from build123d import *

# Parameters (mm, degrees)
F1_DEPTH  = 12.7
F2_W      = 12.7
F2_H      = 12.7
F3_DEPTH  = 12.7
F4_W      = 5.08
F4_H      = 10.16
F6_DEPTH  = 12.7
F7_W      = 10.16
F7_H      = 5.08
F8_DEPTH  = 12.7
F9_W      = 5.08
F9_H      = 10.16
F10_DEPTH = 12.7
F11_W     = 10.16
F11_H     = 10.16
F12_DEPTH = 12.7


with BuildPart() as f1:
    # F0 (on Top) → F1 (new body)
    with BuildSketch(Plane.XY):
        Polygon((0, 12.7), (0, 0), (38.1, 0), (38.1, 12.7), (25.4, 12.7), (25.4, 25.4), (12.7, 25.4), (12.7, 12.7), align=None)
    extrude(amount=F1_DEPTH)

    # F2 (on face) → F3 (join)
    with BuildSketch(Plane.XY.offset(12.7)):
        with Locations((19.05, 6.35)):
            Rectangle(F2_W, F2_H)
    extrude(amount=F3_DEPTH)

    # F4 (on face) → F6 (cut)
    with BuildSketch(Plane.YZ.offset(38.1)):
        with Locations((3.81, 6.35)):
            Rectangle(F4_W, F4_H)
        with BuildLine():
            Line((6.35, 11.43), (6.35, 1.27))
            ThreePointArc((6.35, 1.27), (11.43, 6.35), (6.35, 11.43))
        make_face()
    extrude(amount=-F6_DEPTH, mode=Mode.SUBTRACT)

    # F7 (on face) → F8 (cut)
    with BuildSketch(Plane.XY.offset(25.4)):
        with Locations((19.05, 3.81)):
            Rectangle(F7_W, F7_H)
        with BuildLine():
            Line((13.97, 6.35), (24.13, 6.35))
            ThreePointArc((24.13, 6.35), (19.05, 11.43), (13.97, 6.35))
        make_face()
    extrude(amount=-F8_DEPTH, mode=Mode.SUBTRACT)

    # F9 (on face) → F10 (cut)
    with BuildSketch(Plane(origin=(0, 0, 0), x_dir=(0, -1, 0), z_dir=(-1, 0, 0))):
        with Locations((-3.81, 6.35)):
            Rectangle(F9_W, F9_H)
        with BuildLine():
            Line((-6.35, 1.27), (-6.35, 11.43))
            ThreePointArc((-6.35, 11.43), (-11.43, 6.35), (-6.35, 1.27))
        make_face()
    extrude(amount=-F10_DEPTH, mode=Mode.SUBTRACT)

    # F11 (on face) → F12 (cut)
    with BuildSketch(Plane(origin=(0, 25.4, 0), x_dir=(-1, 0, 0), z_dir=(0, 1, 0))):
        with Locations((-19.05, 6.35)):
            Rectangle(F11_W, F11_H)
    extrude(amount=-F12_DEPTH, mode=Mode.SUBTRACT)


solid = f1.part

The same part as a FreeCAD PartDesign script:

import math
import FreeCAD as App
import Part
import Sketcher
from FreeCAD import Vector
Q = App.Units.Quantity

doc = App.newDocument("Part")
body = doc.addObject("PartDesign::Body", "Body")

# Sketch on XY plane
sketch1 = doc.addObject("Sketcher::SketchObject", "Sketch")
body.addObject(sketch1)
sketch1.AttachmentSupport = (doc.XY_Plane, [""])
sketch1.MapMode = "FlatFace"
sketch1.addGeometry(Part.LineSegment(Vector(0, 13, 0), Vector(0, 0, 0)), False)
sketch1.addGeometry(Part.LineSegment(Vector(0, 0, 0), Vector(38, 0, 0)), False)
sketch1.addGeometry(Part.LineSegment(Vector(38, 0, 0), Vector(38, 13, 0)), False)
sketch1.addGeometry(Part.LineSegment(Vector(38, 13, 0), Vector(25, 13, 0)), False)
sketch1.addGeometry(Part.LineSegment(Vector(25, 13, 0), Vector(25, 25, 0)), False)
sketch1.addGeometry(Part.LineSegment(Vector(25, 25, 0), Vector(13, 25, 0)), False)
sketch1.addGeometry(Part.LineSegment(Vector(13, 25, 0), Vector(13, 13, 0)), False)
sketch1.addGeometry(Part.LineSegment(Vector(13, 13, 0), Vector(0, 13, 0)), False)
sketch1.addConstraint(Sketcher.Constraint("Coincident", 0, 2, 1, 1))
sketch1.addConstraint(Sketcher.Constraint("Coincident", 1, 2, 2, 1))
sketch1.addConstraint(Sketcher.Constraint("Coincident", 2, 2, 3, 1))
sketch1.addConstraint(Sketcher.Constraint("Coincident", 3, 2, 4, 1))
sketch1.addConstraint(Sketcher.Constraint("Coincident", 4, 2, 5, 1))
sketch1.addConstraint(Sketcher.Constraint("Coincident", 5, 2, 6, 1))
sketch1.addConstraint(Sketcher.Constraint("Coincident", 6, 2, 7, 1))
sketch1.addConstraint(Sketcher.Constraint("Coincident", 7, 2, 0, 1))
sketch1.addConstraint(Sketcher.Constraint("Vertical", 0))
sketch1.addConstraint(Sketcher.Constraint("Horizontal", 1))
sketch1.addConstraint(Sketcher.Constraint("Vertical", 2))
sketch1.addConstraint(Sketcher.Constraint("Horizontal", 3))
sketch1.addConstraint(Sketcher.Constraint("Vertical", 4))
sketch1.addConstraint(Sketcher.Constraint("Horizontal", 5))
sketch1.addConstraint(Sketcher.Constraint("Vertical", 6))
sketch1.addConstraint(Sketcher.Constraint("Horizontal", 7))
sketch1.addConstraint(Sketcher.Constraint("Coincident", 0, 2, -1, 1))
sketch1.addConstraint(Sketcher.Constraint("Horizontal", 3, 2, 6, 2))
sketch1.addConstraint(Sketcher.Constraint("Equal", 3, 5))
sketch1.addConstraint(Sketcher.Constraint("Equal", 5, 7))
sketch1.addConstraint(Sketcher.Constraint("Equal", 7, 0))
sketch1.addConstraint(Sketcher.Constraint("Equal", 2, 4))
sketch1.addConstraint(Sketcher.Constraint("DistanceX", 1, 1, 1, 2, Q("1.5 in")))
pad1 = doc.addObject("PartDesign::Pad", "Pad")
body.addObject(pad1)
pad1.Profile = sketch1
pad1.Length = Q("0.5 in")

# Sketch on XY plane
sketch2 = doc.addObject("Sketcher::SketchObject", "Sketch001")
body.addObject(sketch2)
sketch2.AttachmentSupport = (doc.XY_Plane, [""])
sketch2.MapMode = "FlatFace"
sketch2.AttachmentOffset = App.Placement(Vector(0, 0, 0.5 * 25.4), App.Rotation())
sketch2.addGeometry(Part.LineSegment(Vector(13, 13, 0), Vector(13, 0, 0)), False)
sketch2.addGeometry(Part.LineSegment(Vector(13, 0, 0), Vector(25, 0, 0)), False)
sketch2.addGeometry(Part.LineSegment(Vector(25, 0, 0), Vector(25, 13, 0)), False)
sketch2.addGeometry(Part.LineSegment(Vector(25, 13, 0), Vector(13, 13, 0)), False)
sketch2.addConstraint(Sketcher.Constraint("Coincident", 0, 2, 1, 1))
sketch2.addConstraint(Sketcher.Constraint("Coincident", 1, 2, 2, 1))
sketch2.addConstraint(Sketcher.Constraint("Coincident", 2, 2, 3, 1))
sketch2.addConstraint(Sketcher.Constraint("Coincident", 3, 2, 0, 1))
sketch2.addConstraint(Sketcher.Constraint("Vertical", 0))
sketch2.addConstraint(Sketcher.Constraint("Horizontal", 1))
sketch2.addConstraint(Sketcher.Constraint("Vertical", 2))
sketch2.addConstraint(Sketcher.Constraint("Horizontal", 3))
sketch2.addConstraint(Sketcher.Constraint("PointOnObject", 0, 2, -1))
sketch2.addConstraint(Sketcher.Constraint("Equal", 3, 0))
sketch2.addConstraint(Sketcher.Constraint("DistanceX", 1, 1, 1, 2, Q("0.5 in")))
sketch2.addConstraint(Sketcher.Constraint("DistanceX", -1, 1, 1, 2, Q("1 in")))
pad2 = doc.addObject("PartDesign::Pad", "Pad001")
body.addObject(pad2)
pad2.Profile = sketch2
pad2.Length = Q("0.5 in")

# Sketch on YZ plane
sketch3 = doc.addObject("Sketcher::SketchObject", "Sketch002")
body.addObject(sketch3)
sketch3.AttachmentSupport = (doc.YZ_Plane, [""])
sketch3.MapMode = "FlatFace"
sketch3.AttachmentOffset = App.Placement(Vector(0, 0, 1.5 * 25.4), App.Rotation())
sketch3.addGeometry(Part.LineSegment(Vector(1, 11, 0), Vector(1, 1, 0)), False)
sketch3.addGeometry(Part.LineSegment(Vector(1, 1, 0), Vector(6, 1, 0)), False)
sketch3.addGeometry(Part.ArcOfCircle(Part.Circle(Vector(6, 6, 0), Vector(0, 0, 1), 5), math.radians(-90), math.radians(90)), False)
sketch3.addGeometry(Part.LineSegment(Vector(6, 11, 0), Vector(1, 11, 0)), False)
sketch3.addConstraint(Sketcher.Constraint("Coincident", 0, 2, 1, 1))
sketch3.addConstraint(Sketcher.Constraint("Tangent", 1, 2, 2, 1))
sketch3.addConstraint(Sketcher.Constraint("Tangent", 2, 2, 3, 1))
sketch3.addConstraint(Sketcher.Constraint("Coincident", 3, 2, 0, 1))
sketch3.addConstraint(Sketcher.Constraint("Vertical", 0))
sketch3.addConstraint(Sketcher.Constraint("Horizontal", 1))
sketch3.addConstraint(Sketcher.Constraint("Horizontal", 3))
sketch3.addConstraint(Sketcher.Constraint("Radius", 2, Q("0.2 in")))
sketch3.addConstraint(Sketcher.Constraint("DistanceX", 1, 1, 1, 2, Q("0.2 in")))
sketch3.addConstraint(Sketcher.Constraint("DistanceX", -1, 1, 2, 3, Q("0.25 in")))
sketch3.addConstraint(Sketcher.Constraint("DistanceY", -1, 1, 2, 3, Q("0.25 in")))
pocket1 = doc.addObject("PartDesign::Pocket", "Pocket")
body.addObject(pocket1)
pocket1.Profile = sketch3
pocket1.Length = Q("0.5 in")

# Sketch on XY plane
sketch4 = doc.addObject("Sketcher::SketchObject", "Sketch003")
body.addObject(sketch4)
sketch4.AttachmentSupport = (doc.XY_Plane, [""])
sketch4.MapMode = "FlatFace"
sketch4.AttachmentOffset = App.Placement(Vector(0, 0, 1 * 25.4), App.Rotation())
sketch4.addGeometry(Part.LineSegment(Vector(14, 6, 0), Vector(14, 1, 0)), False)
sketch4.addGeometry(Part.LineSegment(Vector(14, 1, 0), Vector(24, 1, 0)), False)
sketch4.addGeometry(Part.LineSegment(Vector(24, 1, 0), Vector(24, 6, 0)), False)
sketch4.addGeometry(Part.ArcOfCircle(Part.Circle(Vector(19, 6, 0), Vector(0, 0, 1), 5), math.radians(0), math.radians(180)), False)
sketch4.addConstraint(Sketcher.Constraint("Coincident", 0, 2, 1, 1))
sketch4.addConstraint(Sketcher.Constraint("Coincident", 1, 2, 2, 1))
sketch4.addConstraint(Sketcher.Constraint("Tangent", 2, 2, 3, 1))
sketch4.addConstraint(Sketcher.Constraint("Tangent", 3, 2, 0, 1))
sketch4.addConstraint(Sketcher.Constraint("Vertical", 0))
sketch4.addConstraint(Sketcher.Constraint("Horizontal", 1))
sketch4.addConstraint(Sketcher.Constraint("Vertical", 2))
sketch4.addConstraint(Sketcher.Constraint("Radius", 3, Q("0.2 in")))
sketch4.addConstraint(Sketcher.Constraint("DistanceY", 0, 2, 0, 1, Q("0.2 in")))
sketch4.addConstraint(Sketcher.Constraint("DistanceX", -1, 1, 3, 3, Q("0.75 in")))
sketch4.addConstraint(Sketcher.Constraint("DistanceY", -1, 1, 3, 3, Q("0.25 in")))
pocket2 = doc.addObject("PartDesign::Pocket", "Pocket001")
body.addObject(pocket2)
pocket2.Profile = sketch4
pocket2.Length = Q("0.5 in")

# Sketch on YZ plane
sketch5 = doc.addObject("Sketcher::SketchObject", "Sketch004")
body.addObject(sketch5)
sketch5.AttachmentSupport = (doc.YZ_Plane, [""])
sketch5.MapMode = "FlatFace"
sketch5.addGeometry(Part.LineSegment(Vector(6, 1, 0), Vector(1, 1, 0)), False)
sketch5.addGeometry(Part.LineSegment(Vector(1, 1, 0), Vector(1, 11, 0)), False)
sketch5.addGeometry(Part.LineSegment(Vector(1, 11, 0), Vector(6, 11, 0)), False)
sketch5.addGeometry(Part.ArcOfCircle(Part.Circle(Vector(6, 6, 0), Vector(0, 0, 1), 5), math.radians(-90), math.radians(90)), False)
sketch5.addConstraint(Sketcher.Constraint("Coincident", 0, 2, 1, 1))
sketch5.addConstraint(Sketcher.Constraint("Coincident", 1, 2, 2, 1))
sketch5.addConstraint(Sketcher.Constraint("Tangent", 2, 2, 3, 2))
sketch5.addConstraint(Sketcher.Constraint("Tangent", 3, 1, 0, 1))
sketch5.addConstraint(Sketcher.Constraint("Horizontal", 0))
sketch5.addConstraint(Sketcher.Constraint("Vertical", 1))
sketch5.addConstraint(Sketcher.Constraint("Horizontal", 2))
sketch5.addConstraint(Sketcher.Constraint("Radius", 3, Q("0.2 in")))
sketch5.addConstraint(Sketcher.Constraint("DistanceX", 0, 2, 0, 1, Q("0.2 in")))
sketch5.addConstraint(Sketcher.Constraint("DistanceX", -1, 1, 3, 3, Q("0.25 in")))
sketch5.addConstraint(Sketcher.Constraint("DistanceY", -1, 1, 3, 3, Q("0.25 in")))
pocket3 = doc.addObject("PartDesign::Pocket", "Pocket002")
body.addObject(pocket3)
pocket3.Profile = sketch5
pocket3.Length = Q("0.5 in")
pocket3.Reversed = True

# Sketch on XZ plane
sketch6 = doc.addObject("Sketcher::SketchObject", "Sketch005")
body.addObject(sketch6)
sketch6.AttachmentSupport = (doc.XZ_Plane, [""])
sketch6.MapMode = "FlatFace"
sketch6.AttachmentOffset = App.Placement(Vector(0, 0, -1 * 25.4), App.Rotation())
sketch6.addGeometry(Part.LineSegment(Vector(24, 11, 0), Vector(24, 1, 0)), False)
sketch6.addGeometry(Part.LineSegment(Vector(24, 1, 0), Vector(14, 1, 0)), False)
sketch6.addGeometry(Part.LineSegment(Vector(14, 1, 0), Vector(14, 11, 0)), False)
sketch6.addGeometry(Part.LineSegment(Vector(14, 11, 0), Vector(24, 11, 0)), False)
sketch6.addConstraint(Sketcher.Constraint("Coincident", 0, 2, 1, 1))
sketch6.addConstraint(Sketcher.Constraint("Coincident", 1, 2, 2, 1))
sketch6.addConstraint(Sketcher.Constraint("Coincident", 2, 2, 3, 1))
sketch6.addConstraint(Sketcher.Constraint("Coincident", 3, 2, 0, 1))
sketch6.addConstraint(Sketcher.Constraint("Vertical", 0))
sketch6.addConstraint(Sketcher.Constraint("Horizontal", 1))
sketch6.addConstraint(Sketcher.Constraint("Vertical", 2))
sketch6.addConstraint(Sketcher.Constraint("Horizontal", 3))
sketch6.addConstraint(Sketcher.Constraint("Equal", 3, 0))
sketch6.addConstraint(Sketcher.Constraint("DistanceX", 1, 2, 1, 1, Q("0.4 in")))
sketch6.addConstraint(Sketcher.Constraint("DistanceX", -1, 1, 0, 2, Q("0.95 in")))
sketch6.addConstraint(Sketcher.Constraint("DistanceY", -1, 1, 0, 2, Q("0.05 in")))
pocket4 = doc.addObject("PartDesign::Pocket", "Pocket003")
body.addObject(pocket4)
pocket4.Profile = sketch6
pocket4.Length = Q("0.5 in")
pocket4.Reversed = True

doc.recompute()
